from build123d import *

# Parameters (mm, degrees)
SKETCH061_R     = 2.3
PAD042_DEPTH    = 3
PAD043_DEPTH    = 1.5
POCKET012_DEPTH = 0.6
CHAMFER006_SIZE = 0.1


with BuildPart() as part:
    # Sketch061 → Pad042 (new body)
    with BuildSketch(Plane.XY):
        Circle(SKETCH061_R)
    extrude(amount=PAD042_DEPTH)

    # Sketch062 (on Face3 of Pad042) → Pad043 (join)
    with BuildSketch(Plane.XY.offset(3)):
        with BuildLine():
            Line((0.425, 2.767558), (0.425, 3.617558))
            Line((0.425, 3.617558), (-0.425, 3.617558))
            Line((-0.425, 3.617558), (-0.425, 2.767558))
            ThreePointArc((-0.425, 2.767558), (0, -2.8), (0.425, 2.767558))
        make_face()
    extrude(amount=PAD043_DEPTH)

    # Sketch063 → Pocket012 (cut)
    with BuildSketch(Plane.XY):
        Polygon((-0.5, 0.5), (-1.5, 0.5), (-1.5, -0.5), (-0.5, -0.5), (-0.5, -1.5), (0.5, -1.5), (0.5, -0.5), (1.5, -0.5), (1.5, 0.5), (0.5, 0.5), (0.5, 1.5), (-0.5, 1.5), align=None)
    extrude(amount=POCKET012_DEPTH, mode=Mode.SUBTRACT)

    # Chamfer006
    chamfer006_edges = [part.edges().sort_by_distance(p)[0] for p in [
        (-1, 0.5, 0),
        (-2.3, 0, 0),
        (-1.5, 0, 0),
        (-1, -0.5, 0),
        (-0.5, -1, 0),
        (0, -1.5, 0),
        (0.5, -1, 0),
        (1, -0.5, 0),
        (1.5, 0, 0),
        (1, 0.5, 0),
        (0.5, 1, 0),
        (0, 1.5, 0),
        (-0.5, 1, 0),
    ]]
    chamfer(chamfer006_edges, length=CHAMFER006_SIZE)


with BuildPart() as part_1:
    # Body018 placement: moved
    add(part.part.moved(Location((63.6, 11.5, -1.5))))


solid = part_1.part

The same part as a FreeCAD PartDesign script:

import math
import FreeCAD as App
import Part
import Sketcher

V = App.Vector


def edges_at(feature, points):
    """Names of the edges that pass closest to the given points."""
    edges = feature.Shape.Edges
    near = lambda p: min(range(len(edges)), key=lambda i: edges[i].distToShape(Part.Vertex(*p))[0])
    return sorted({f"Edge{near(p) + 1}" for p in points})


def add_polygon(sketch, points):
    """Adds a closed chain of lines whose ends are joined by coincident constraints."""
    first, n = sketch.GeometryCount, len(points)
    for a, b in zip(points, points[1:] + points[:1]):
        sketch.addGeometry(Part.LineSegment(App.Vector(*a, 0), App.Vector(*b, 0)), False)
    for i in range(n):
        sketch.addConstraint(Sketcher.Constraint("Coincident", first + i, 2, first + (i + 1) % n, 1))

doc = App.newDocument("Part")
body = doc.addObject("PartDesign::Body", "Body")

sketch1 = body.newObject("Sketcher::SketchObject", "Sketch")
sketch1.AttachmentSupport = (doc.getObject("XY_Plane"), [""])
sketch1.MapMode = "FlatFace"
sketch1.addGeometry(Part.Circle(V(0, 0, 0), V(0, 0, 1), 2.3), False)
sketch1.addConstraint([
    Sketcher.Constraint("Coincident", 0, 3, -1, 1),
    Sketcher.Constraint("Diameter", 0, 4.6),
])
pad1 = body.newObject("PartDesign::Pad", "Pad")
pad1.Profile = sketch1
pad1.Length = 3

sketch2 = body.newObject("Sketcher::SketchObject", "Sketch001")
sketch2.AttachmentSupport = (doc.getObject("XY_Plane"), [""])
sketch2.MapMode = "FlatFace"
sketch2.AttachmentOffset = App.Placement(V(0, 0, 3), App.Rotation())
sketch2.addGeometry([
    Part.LineSegment(V(0.4, 2.8, 0), V(0.4, 3.6, 0)),
    Part.LineSegment(V(0.4, 3.6, 0), V(-0.4, 3.6, 0)),
    Part.LineSegment(V(-0.4, 3.6, 0), V(-0.4, 2.8, 0)),
    Part.ArcOfCircle(Part.Circle(V(0, 0, 0), V(0, 0, 1), 2.8), math.radians(99), math.radians(441)),
], False)
sketch2.addConstraint([
    Sketcher.Constraint("Coincident", 0, 2, 1, 1),
    Sketcher.Constraint("Coincident", 1, 2, 2, 1),
    Sketcher.Constraint("Coincident", 2, 2, 3, 1),
    Sketcher.Constraint("Coincident", 3, 2, 0, 1),
    Sketcher.Constraint("Vertical", 0),
    Sketcher.Constraint("Horizontal", 1),
    Sketcher.Constraint("Vertical", 2),
    Sketcher.Constraint("Coincident", 3, 3, -1, 1),
    Sketcher.Constraint("Horizontal", 2, 2, 3, 2),
    Sketcher.Constraint("Equal", 1, 0),
    Sketcher.Constraint("Radius", 3, 2.8),
    Sketcher.Constraint("DistanceX", 1, 2, 1, 1, 0.85),
])
pad2 = body.newObject("PartDesign::Pad", "Pad001")
pad2.Profile = sketch2
pad2.Length = 1.5

sketch3 = body.newObject("Sketcher::SketchObject", "Sketch002")
sketch3.AttachmentSupport = (doc.getObject("XY_Plane"), [""])
sketch3.MapMode = "FlatFace"
add_polygon(sketch3, [(-0.5, 0.5), (-1.5, 0.5), (-1.5, -0.5), (-0.5, -0.5), (-0.5, -1.5), (0.5, -1.5), (0.5, -0.5), (1.5, -0.5), (1.5, 0.5), (0.5, 0.5), (0.5, 1.5), (-0.5, 1.5)])
sketch3.addConstraint([
    Sketcher.Constraint("Horizontal", 0),
    Sketcher.Constraint("Vertical", 1),
    Sketcher.Constraint("Horizontal", 2),
    Sketcher.Constraint("Vertical", 3),
    Sketcher.Constraint("Horizontal", 4),
    Sketcher.Constraint("Vertical", 5),
    Sketcher.Constraint("Horizontal", 6),
    Sketcher.Constraint("Vertical", 7),
    Sketcher.Constraint("Horizontal", 8),
    Sketcher.Constraint("Vertical", 9),
    Sketcher.Constraint("Horizontal", 10),
    Sketcher.Constraint("Vertical", 11),
    Sketcher.Constraint("Symmetric", 0, 2, 6, 2, -1, 1),
    Sketcher.Constraint("Symmetric", 2, 2, 8, 2, -1, 1),
    Sketcher.Constraint("Symmetric", 4, 2, 10, 2, -1, 1),
    Sketcher.Constraint("Symmetric", 2, 2, 5, 2, -2),
    Sketcher.Constraint("Equal", 2, 4),
    Sketcher.Constraint("Equal", 10, 1),
    Sketcher.Constraint("Equal", 1, 3),
    Sketcher.Constraint("DistanceX", 0, 2, 0, 1, 1.0),
])
pocket1 = body.newObject("PartDesign::Pocket", "Pocket")
pocket1.Profile = sketch3
pocket1.Length = 0.6
pocket1.Reversed = True
doc.recompute()

chamfer = body.newObject("PartDesign::Chamfer", "Chamfer")
chamfer.Base = (pocket1, edges_at(pocket1, [
    (-1, 0.5, 0),
    (-2.3, 0, 0),
    (-1.5, 0, 0),
    (-1, -0.5, 0),
    (-0.5, -1, 0),
    (0, -1.5, 0),
    (0.5, -1, 0),
    (1, -0.5, 0),
    (1.5, 0, 0),
    (1, 0.5, 0),
    (0.5, 1, 0),
    (0, 1.5, 0),
    (-0.5, 1, 0),
]))
chamfer.Size = 0.1
body2 = doc.addObject("PartDesign::Body", "Body001")
doc.recompute()

body.Placement = App.Placement(V(63.6, 11.5, -1.5), App.Rotation(V(0, 0, 1), 0))
boolean = body2.newObject("PartDesign::Boolean", "Boolean")
boolean.Type = "Fuse"
boolean.addObjects([body])

doc.recompute()
